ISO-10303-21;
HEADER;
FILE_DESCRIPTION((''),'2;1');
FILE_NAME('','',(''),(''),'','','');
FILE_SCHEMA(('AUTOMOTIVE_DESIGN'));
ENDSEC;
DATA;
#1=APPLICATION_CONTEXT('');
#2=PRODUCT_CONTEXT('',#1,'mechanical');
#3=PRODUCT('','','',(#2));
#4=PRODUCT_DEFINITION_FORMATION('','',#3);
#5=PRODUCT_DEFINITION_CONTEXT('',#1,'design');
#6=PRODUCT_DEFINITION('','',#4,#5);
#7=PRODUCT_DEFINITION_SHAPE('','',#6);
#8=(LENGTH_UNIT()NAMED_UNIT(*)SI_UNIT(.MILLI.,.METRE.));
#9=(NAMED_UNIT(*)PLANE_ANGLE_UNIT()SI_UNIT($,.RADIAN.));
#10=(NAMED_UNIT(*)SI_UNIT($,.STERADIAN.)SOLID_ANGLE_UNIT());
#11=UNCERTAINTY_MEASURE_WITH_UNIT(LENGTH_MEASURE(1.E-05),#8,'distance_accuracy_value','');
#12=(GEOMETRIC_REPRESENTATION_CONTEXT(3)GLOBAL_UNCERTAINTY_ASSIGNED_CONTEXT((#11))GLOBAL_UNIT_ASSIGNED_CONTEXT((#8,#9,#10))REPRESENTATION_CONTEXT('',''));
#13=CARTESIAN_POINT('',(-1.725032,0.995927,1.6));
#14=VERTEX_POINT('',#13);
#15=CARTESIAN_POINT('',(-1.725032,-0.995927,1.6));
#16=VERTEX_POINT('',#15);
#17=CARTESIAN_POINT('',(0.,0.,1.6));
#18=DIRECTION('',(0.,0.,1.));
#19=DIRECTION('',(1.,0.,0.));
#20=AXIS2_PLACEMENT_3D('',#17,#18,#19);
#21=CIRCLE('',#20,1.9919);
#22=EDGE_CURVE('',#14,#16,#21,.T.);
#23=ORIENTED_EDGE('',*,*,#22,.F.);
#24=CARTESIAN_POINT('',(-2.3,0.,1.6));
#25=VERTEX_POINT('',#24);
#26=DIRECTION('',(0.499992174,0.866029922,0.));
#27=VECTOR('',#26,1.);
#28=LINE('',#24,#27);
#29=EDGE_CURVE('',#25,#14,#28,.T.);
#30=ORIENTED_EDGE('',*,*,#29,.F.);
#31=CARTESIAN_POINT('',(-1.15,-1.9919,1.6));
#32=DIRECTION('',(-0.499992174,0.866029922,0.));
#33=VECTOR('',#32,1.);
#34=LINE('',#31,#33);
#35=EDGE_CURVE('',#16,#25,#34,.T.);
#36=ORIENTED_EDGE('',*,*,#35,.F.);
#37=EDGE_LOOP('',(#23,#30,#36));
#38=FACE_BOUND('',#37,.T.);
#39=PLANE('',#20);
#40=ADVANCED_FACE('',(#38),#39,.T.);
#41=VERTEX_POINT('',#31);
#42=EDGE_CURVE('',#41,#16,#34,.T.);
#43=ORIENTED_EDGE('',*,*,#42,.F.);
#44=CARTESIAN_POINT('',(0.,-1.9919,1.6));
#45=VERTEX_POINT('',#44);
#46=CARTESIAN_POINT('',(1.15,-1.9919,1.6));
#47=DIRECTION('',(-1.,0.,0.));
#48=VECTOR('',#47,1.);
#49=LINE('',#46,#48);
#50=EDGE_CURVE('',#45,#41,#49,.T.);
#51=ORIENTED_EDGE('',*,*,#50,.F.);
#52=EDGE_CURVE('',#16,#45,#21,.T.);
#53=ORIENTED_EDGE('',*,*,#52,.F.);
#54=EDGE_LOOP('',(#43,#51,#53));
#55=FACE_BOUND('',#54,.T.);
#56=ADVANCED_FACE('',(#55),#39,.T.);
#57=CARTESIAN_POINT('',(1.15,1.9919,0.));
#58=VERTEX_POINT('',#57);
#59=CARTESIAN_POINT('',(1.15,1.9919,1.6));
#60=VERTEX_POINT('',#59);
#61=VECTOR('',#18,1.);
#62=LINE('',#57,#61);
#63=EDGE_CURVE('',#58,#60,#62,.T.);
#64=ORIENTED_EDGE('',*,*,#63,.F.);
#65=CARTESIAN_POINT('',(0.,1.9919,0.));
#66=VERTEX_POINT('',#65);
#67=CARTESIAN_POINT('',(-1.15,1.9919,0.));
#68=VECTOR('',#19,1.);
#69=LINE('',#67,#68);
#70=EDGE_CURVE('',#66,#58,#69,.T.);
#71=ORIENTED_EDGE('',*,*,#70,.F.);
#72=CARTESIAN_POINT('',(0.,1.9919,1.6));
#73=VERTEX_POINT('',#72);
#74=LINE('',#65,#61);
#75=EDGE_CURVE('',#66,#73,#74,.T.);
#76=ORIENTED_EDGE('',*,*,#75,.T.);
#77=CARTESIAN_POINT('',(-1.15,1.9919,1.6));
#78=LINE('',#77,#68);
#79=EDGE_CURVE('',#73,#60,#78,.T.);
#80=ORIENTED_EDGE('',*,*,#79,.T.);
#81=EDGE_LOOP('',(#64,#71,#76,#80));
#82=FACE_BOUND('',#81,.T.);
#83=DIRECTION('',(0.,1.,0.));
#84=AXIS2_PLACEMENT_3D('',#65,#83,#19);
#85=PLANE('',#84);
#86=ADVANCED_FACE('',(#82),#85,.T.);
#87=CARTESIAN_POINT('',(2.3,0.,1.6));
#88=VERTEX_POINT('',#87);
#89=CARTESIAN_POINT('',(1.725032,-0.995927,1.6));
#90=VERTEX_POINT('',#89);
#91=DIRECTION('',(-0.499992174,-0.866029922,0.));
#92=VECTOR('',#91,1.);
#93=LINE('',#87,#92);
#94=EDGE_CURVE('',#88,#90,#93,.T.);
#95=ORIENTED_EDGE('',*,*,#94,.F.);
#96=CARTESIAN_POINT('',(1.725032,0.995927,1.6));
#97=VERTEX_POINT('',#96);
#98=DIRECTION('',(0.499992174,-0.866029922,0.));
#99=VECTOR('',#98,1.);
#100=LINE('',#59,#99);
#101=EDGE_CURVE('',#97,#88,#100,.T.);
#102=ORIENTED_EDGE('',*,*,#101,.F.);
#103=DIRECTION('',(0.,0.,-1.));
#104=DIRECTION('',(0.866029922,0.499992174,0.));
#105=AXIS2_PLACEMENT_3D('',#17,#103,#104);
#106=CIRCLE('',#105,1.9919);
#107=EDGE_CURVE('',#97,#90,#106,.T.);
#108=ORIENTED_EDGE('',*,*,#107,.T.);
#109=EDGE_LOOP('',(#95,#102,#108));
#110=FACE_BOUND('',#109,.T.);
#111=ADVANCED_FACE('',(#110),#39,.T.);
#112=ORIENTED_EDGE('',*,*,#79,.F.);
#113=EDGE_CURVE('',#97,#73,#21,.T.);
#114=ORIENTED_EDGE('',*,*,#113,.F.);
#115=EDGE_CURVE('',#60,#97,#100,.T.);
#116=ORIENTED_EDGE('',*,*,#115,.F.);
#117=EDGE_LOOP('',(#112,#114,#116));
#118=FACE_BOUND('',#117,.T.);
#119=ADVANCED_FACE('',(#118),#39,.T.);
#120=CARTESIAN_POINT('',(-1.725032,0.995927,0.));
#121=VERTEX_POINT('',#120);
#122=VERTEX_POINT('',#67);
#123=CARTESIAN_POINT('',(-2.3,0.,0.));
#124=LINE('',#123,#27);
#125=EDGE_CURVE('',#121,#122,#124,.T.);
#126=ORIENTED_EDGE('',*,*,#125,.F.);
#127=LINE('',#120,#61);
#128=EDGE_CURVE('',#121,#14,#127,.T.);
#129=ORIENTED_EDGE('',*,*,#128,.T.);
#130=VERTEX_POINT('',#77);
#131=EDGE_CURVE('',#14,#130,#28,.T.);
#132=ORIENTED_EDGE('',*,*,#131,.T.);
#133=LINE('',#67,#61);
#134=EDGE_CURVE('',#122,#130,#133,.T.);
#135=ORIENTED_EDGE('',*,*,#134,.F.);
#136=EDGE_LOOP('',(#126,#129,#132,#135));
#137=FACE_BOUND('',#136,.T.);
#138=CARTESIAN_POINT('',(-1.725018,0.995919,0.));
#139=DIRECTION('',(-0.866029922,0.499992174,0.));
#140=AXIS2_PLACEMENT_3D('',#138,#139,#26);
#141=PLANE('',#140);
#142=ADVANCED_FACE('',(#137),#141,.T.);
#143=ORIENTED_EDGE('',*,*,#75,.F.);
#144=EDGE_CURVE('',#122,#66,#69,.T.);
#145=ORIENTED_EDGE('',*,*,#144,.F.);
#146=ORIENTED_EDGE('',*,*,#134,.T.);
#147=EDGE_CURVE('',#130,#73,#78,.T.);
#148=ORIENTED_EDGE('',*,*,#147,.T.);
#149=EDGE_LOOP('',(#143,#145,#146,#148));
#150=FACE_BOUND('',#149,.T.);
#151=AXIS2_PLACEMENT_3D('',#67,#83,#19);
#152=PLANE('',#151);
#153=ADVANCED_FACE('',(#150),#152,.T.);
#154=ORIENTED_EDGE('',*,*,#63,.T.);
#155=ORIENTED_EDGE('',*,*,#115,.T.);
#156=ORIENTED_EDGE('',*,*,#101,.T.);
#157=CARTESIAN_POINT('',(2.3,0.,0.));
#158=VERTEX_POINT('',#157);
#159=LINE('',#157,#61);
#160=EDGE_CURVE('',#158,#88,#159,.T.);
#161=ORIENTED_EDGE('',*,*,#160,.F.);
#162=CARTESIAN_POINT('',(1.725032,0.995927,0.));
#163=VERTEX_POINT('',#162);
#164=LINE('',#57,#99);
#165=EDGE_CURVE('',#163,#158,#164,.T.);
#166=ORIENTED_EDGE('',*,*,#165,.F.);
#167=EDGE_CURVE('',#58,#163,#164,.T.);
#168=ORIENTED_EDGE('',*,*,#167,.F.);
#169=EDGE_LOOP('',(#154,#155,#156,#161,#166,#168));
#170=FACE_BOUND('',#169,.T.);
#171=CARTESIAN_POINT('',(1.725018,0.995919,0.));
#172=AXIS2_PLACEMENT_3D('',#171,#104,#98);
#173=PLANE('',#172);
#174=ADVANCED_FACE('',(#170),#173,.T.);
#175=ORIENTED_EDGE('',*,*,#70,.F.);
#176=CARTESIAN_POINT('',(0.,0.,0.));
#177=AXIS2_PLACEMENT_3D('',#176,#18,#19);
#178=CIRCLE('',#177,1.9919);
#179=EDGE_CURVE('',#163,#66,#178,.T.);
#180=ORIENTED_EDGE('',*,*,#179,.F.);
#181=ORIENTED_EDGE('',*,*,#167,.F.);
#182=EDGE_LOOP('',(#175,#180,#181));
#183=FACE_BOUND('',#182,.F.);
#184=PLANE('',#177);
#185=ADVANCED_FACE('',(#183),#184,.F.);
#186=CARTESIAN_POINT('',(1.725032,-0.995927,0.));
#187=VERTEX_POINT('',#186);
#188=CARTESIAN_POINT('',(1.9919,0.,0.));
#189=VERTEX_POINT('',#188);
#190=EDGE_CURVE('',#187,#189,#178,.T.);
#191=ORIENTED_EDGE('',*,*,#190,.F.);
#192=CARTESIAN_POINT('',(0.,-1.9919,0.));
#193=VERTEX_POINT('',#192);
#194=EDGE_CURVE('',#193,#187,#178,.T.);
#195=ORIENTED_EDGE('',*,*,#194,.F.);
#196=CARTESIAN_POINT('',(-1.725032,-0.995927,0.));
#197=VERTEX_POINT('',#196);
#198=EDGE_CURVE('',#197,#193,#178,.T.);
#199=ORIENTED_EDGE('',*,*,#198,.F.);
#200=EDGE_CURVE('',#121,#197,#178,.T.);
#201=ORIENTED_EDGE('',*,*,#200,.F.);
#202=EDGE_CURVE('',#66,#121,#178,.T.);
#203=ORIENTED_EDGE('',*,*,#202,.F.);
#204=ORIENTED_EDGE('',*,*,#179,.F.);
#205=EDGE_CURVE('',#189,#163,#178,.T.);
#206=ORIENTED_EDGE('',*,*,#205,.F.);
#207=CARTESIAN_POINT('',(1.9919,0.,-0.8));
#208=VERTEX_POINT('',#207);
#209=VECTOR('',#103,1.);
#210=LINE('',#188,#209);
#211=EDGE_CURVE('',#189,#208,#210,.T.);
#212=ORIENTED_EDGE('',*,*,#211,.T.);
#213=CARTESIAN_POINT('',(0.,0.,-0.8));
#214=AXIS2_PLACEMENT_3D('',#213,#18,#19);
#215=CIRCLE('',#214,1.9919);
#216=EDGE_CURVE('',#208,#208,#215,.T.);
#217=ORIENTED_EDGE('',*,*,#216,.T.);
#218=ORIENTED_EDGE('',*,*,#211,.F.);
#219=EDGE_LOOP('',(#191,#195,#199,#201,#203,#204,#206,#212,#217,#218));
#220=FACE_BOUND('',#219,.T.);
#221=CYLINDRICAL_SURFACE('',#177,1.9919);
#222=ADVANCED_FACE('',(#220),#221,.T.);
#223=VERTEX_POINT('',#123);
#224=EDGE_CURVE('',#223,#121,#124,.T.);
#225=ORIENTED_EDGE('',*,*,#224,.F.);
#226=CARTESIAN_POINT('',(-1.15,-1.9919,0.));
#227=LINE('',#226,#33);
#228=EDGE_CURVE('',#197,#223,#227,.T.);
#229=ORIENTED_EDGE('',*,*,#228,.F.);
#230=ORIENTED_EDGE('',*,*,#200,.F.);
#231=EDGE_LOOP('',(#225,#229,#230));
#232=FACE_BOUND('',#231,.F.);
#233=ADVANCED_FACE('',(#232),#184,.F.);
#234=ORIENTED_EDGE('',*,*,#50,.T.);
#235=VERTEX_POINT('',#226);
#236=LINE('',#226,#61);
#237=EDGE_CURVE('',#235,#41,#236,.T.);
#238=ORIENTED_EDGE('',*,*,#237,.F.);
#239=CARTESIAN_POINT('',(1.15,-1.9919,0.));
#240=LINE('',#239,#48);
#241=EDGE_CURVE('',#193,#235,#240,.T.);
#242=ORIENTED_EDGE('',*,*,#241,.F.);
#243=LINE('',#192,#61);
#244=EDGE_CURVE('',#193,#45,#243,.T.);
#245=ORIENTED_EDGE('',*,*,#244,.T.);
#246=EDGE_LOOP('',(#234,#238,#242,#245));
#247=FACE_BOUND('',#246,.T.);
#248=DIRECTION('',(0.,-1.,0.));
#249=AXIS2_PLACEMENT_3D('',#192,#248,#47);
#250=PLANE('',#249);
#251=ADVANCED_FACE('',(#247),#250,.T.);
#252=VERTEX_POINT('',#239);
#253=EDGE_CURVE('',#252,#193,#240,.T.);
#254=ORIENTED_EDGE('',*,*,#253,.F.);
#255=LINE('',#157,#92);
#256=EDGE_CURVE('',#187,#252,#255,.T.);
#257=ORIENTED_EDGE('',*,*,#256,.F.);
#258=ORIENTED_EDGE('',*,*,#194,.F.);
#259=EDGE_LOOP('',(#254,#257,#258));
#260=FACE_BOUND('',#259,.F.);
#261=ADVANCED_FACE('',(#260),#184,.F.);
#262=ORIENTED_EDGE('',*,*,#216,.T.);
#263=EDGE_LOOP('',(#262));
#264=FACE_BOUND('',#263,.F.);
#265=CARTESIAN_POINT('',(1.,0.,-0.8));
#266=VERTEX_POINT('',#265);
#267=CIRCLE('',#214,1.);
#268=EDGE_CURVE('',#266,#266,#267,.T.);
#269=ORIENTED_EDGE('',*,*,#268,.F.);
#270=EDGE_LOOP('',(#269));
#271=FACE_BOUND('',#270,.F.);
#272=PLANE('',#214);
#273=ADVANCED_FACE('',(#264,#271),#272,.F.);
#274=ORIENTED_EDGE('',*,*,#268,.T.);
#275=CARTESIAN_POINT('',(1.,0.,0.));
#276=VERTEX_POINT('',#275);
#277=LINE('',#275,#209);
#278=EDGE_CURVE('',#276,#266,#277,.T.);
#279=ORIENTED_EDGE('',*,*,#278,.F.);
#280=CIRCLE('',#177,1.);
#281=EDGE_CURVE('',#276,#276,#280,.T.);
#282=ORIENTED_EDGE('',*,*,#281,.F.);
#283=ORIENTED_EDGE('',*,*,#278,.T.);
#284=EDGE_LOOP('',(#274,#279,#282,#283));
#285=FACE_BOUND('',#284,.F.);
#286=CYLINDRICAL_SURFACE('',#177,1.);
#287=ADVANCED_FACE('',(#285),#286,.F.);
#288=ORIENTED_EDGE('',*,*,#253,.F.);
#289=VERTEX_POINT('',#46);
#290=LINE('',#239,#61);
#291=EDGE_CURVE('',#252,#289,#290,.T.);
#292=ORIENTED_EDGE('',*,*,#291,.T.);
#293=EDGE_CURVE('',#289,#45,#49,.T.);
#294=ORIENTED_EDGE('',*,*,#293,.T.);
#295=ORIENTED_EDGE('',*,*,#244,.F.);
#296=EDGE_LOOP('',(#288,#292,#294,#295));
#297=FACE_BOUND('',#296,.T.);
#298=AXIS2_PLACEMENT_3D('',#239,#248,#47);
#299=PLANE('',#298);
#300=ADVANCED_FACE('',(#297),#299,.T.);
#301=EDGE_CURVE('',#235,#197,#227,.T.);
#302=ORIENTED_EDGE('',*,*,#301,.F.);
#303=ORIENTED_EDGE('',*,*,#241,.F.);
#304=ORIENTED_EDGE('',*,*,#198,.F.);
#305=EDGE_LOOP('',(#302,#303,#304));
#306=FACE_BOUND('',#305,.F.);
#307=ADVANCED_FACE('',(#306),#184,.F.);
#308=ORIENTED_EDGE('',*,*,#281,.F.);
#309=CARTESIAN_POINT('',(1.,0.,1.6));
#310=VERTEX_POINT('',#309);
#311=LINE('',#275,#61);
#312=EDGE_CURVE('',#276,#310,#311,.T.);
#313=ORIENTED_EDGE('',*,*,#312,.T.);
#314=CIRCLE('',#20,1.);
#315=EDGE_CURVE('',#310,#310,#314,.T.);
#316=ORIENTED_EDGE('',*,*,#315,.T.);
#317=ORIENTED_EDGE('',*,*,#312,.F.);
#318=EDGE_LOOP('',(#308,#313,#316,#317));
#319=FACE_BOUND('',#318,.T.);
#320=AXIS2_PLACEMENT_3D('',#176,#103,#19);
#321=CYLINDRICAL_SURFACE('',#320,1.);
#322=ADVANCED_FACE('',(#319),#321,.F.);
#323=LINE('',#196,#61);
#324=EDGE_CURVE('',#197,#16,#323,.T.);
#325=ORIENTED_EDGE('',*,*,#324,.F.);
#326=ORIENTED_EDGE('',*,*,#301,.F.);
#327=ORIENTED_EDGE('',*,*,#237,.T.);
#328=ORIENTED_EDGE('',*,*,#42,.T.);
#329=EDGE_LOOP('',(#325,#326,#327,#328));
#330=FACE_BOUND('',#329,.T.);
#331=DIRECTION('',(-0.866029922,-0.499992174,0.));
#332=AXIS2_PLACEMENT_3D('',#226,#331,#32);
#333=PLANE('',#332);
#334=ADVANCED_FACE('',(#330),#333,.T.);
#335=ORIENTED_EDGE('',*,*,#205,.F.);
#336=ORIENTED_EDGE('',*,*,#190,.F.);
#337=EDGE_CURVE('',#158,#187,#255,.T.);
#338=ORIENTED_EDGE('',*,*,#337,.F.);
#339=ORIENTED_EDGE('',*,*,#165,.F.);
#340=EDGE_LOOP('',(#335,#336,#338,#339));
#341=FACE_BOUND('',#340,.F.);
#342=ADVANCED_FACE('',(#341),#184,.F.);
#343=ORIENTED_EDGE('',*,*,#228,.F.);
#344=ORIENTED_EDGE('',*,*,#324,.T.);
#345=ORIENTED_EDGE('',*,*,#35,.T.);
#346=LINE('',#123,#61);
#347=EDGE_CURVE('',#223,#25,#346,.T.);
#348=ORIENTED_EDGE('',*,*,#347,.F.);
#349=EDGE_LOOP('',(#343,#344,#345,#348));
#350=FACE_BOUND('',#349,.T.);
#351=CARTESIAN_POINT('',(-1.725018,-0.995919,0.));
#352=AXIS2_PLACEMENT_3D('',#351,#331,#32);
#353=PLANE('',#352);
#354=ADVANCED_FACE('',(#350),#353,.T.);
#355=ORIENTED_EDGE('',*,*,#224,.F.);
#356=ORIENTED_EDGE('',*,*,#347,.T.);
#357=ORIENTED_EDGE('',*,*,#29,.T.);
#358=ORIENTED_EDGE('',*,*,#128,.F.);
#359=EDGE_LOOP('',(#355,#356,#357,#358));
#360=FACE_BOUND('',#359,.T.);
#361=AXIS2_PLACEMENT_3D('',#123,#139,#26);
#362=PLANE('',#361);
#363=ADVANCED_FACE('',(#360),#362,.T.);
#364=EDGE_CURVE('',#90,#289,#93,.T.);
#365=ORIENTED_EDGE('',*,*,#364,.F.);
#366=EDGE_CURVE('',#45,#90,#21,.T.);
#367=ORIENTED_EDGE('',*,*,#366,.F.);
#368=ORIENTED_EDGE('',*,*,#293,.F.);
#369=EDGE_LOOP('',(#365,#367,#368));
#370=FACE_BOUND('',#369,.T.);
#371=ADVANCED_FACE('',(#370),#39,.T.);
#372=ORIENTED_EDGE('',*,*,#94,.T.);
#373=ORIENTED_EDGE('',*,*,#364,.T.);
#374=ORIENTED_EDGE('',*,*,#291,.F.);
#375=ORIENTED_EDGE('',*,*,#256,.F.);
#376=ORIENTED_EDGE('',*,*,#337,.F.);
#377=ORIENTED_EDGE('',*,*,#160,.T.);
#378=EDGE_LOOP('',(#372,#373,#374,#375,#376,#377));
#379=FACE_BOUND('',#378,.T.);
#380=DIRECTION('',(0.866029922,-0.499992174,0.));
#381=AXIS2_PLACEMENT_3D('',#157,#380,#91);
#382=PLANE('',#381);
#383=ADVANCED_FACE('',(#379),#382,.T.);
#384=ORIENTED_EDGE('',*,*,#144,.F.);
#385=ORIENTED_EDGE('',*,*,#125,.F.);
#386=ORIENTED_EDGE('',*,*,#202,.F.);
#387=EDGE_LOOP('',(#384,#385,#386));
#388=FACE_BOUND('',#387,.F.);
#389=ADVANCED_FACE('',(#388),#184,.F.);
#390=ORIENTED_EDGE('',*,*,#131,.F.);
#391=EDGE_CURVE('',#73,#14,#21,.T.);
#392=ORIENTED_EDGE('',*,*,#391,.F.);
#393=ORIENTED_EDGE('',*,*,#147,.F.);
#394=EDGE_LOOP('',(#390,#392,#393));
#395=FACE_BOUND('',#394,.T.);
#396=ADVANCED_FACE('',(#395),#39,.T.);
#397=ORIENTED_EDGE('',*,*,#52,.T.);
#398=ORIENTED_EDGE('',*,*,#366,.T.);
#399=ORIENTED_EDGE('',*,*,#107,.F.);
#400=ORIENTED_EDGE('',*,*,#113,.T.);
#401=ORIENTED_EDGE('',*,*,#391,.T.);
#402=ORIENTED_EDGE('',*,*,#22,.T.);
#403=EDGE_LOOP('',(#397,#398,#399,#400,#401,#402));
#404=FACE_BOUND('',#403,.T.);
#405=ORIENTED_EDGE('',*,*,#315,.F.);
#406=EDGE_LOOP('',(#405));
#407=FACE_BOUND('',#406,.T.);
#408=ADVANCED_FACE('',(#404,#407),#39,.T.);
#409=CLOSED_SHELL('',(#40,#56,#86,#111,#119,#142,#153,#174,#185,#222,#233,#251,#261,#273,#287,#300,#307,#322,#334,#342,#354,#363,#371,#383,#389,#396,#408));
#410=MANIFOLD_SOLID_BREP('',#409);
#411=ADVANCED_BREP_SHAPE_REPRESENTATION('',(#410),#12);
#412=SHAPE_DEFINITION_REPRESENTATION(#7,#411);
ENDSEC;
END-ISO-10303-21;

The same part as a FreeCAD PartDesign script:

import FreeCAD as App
import Part
import Sketcher
Q = App.Units.Quantity

doc = App.newDocument("Part")
body = doc.addObject("PartDesign::Body", "Body")

# Sketch on XY plane
sketch1 = doc.addObject("Sketcher::SketchObject", "Sketch")
body.addObject(sketch1)
sketch1.AttachmentSupport = (doc.XY_Plane, [""])
sketch1.MapMode = "FlatFace"
sketch1.addGeometry([
    Part.LineSegment(App.Vector(2.3, 0, 0), App.Vector(1.1, 2, 0)),  # 0
    Part.LineSegment(App.Vector(1.1, 2, 0), App.Vector(-1.1, 2, 0)),  # 1
    Part.LineSegment(App.Vector(-1.1, 2, 0), App.Vector(-2.3, 0, 0)),  # 2
    Part.LineSegment(App.Vector(-2.3, 0, 0), App.Vector(-1.1, -2, 0)),  # 3
    Part.LineSegment(App.Vector(-1.1, -2, 0), App.Vector(1.1, -2, 0)),  # 4
    Part.LineSegment(App.Vector(1.1, -2, 0), App.Vector(2.3, 0, 0)),  # 5
    Part.Circle(App.Vector(0, 0, 0), App.Vector(0, 0, 1), 1),  # 6
], False)
sketch1.addConstraint([
    Sketcher.Constraint("Coincident", 0, 2, 1, 1),
    Sketcher.Constraint("Coincident", 1, 2, 2, 1),
    Sketcher.Constraint("Coincident", 2, 2, 3, 1),
    Sketcher.Constraint("Coincident", 3, 2, 4, 1),
    Sketcher.Constraint("Coincident", 4, 2, 5, 1),
    Sketcher.Constraint("Coincident", 5, 2, 0, 1),
    Sketcher.Constraint("Horizontal", 1),
    Sketcher.Constraint("Horizontal", 4),
    Sketcher.Constraint("Coincident", 6, 3, -1, 1),
    Sketcher.Constraint("Symmetric", 0, 2, 3, 2, -1, 1),
    Sketcher.Constraint("Symmetric", 2, 2, 5, 2, -1, 1),
    Sketcher.Constraint("PointOnObject", 2, 2, -1),
    Sketcher.Constraint("Parallel", 2, 5),
    Sketcher.Constraint("Vertical", 1, 2, 3, 2),
    Sketcher.Constraint("Diameter", 6, Q("2 mm")),
    Sketcher.Constraint("Angle", 0, Q("119.9995 deg")),
    Sketcher.Constraint("DistanceX", 1, 2, 1, 1, Q("2.3 mm")),
    Sketcher.Constraint("Distance", 0, Q("2.3 mm")),
])
pad1 = doc.addObject("PartDesign::Pad", "Pad")
body.addObject(pad1)
pad1.Profile = sketch1
pad1.Length = 1.6

# Sketch on XY plane
sketch2 = doc.addObject("Sketcher::SketchObject", "Sketch001")
body.addObject(sketch2)
sketch2.AttachmentSupport = (doc.XY_Plane, [""])
sketch2.MapMode = "FlatFace"
sketch2.addGeometry([
    Part.Circle(App.Vector(0, 0, 0), App.Vector(0, 0, 1), 2),
    Part.Circle(App.Vector(0, 0, 0), App.Vector(0, 0, 1), 1),
], False)
sketch2.addConstraint([
    Sketcher.Constraint("Coincident", 0, 3, -1, 1),
    Sketcher.Constraint("Coincident", 1, 3, -1, 1),
    Sketcher.Constraint("Diameter", 1, Q("2 mm")),
    Sketcher.Constraint("Diameter", 0, Q("3.9838 mm")),
])
pad2 = doc.addObject("PartDesign::Pad", "Pad001")
body.addObject(pad2)
pad2.Profile = sketch2
pad2.Length = 0.8
pad2.Reversed = True

doc.recompute()
